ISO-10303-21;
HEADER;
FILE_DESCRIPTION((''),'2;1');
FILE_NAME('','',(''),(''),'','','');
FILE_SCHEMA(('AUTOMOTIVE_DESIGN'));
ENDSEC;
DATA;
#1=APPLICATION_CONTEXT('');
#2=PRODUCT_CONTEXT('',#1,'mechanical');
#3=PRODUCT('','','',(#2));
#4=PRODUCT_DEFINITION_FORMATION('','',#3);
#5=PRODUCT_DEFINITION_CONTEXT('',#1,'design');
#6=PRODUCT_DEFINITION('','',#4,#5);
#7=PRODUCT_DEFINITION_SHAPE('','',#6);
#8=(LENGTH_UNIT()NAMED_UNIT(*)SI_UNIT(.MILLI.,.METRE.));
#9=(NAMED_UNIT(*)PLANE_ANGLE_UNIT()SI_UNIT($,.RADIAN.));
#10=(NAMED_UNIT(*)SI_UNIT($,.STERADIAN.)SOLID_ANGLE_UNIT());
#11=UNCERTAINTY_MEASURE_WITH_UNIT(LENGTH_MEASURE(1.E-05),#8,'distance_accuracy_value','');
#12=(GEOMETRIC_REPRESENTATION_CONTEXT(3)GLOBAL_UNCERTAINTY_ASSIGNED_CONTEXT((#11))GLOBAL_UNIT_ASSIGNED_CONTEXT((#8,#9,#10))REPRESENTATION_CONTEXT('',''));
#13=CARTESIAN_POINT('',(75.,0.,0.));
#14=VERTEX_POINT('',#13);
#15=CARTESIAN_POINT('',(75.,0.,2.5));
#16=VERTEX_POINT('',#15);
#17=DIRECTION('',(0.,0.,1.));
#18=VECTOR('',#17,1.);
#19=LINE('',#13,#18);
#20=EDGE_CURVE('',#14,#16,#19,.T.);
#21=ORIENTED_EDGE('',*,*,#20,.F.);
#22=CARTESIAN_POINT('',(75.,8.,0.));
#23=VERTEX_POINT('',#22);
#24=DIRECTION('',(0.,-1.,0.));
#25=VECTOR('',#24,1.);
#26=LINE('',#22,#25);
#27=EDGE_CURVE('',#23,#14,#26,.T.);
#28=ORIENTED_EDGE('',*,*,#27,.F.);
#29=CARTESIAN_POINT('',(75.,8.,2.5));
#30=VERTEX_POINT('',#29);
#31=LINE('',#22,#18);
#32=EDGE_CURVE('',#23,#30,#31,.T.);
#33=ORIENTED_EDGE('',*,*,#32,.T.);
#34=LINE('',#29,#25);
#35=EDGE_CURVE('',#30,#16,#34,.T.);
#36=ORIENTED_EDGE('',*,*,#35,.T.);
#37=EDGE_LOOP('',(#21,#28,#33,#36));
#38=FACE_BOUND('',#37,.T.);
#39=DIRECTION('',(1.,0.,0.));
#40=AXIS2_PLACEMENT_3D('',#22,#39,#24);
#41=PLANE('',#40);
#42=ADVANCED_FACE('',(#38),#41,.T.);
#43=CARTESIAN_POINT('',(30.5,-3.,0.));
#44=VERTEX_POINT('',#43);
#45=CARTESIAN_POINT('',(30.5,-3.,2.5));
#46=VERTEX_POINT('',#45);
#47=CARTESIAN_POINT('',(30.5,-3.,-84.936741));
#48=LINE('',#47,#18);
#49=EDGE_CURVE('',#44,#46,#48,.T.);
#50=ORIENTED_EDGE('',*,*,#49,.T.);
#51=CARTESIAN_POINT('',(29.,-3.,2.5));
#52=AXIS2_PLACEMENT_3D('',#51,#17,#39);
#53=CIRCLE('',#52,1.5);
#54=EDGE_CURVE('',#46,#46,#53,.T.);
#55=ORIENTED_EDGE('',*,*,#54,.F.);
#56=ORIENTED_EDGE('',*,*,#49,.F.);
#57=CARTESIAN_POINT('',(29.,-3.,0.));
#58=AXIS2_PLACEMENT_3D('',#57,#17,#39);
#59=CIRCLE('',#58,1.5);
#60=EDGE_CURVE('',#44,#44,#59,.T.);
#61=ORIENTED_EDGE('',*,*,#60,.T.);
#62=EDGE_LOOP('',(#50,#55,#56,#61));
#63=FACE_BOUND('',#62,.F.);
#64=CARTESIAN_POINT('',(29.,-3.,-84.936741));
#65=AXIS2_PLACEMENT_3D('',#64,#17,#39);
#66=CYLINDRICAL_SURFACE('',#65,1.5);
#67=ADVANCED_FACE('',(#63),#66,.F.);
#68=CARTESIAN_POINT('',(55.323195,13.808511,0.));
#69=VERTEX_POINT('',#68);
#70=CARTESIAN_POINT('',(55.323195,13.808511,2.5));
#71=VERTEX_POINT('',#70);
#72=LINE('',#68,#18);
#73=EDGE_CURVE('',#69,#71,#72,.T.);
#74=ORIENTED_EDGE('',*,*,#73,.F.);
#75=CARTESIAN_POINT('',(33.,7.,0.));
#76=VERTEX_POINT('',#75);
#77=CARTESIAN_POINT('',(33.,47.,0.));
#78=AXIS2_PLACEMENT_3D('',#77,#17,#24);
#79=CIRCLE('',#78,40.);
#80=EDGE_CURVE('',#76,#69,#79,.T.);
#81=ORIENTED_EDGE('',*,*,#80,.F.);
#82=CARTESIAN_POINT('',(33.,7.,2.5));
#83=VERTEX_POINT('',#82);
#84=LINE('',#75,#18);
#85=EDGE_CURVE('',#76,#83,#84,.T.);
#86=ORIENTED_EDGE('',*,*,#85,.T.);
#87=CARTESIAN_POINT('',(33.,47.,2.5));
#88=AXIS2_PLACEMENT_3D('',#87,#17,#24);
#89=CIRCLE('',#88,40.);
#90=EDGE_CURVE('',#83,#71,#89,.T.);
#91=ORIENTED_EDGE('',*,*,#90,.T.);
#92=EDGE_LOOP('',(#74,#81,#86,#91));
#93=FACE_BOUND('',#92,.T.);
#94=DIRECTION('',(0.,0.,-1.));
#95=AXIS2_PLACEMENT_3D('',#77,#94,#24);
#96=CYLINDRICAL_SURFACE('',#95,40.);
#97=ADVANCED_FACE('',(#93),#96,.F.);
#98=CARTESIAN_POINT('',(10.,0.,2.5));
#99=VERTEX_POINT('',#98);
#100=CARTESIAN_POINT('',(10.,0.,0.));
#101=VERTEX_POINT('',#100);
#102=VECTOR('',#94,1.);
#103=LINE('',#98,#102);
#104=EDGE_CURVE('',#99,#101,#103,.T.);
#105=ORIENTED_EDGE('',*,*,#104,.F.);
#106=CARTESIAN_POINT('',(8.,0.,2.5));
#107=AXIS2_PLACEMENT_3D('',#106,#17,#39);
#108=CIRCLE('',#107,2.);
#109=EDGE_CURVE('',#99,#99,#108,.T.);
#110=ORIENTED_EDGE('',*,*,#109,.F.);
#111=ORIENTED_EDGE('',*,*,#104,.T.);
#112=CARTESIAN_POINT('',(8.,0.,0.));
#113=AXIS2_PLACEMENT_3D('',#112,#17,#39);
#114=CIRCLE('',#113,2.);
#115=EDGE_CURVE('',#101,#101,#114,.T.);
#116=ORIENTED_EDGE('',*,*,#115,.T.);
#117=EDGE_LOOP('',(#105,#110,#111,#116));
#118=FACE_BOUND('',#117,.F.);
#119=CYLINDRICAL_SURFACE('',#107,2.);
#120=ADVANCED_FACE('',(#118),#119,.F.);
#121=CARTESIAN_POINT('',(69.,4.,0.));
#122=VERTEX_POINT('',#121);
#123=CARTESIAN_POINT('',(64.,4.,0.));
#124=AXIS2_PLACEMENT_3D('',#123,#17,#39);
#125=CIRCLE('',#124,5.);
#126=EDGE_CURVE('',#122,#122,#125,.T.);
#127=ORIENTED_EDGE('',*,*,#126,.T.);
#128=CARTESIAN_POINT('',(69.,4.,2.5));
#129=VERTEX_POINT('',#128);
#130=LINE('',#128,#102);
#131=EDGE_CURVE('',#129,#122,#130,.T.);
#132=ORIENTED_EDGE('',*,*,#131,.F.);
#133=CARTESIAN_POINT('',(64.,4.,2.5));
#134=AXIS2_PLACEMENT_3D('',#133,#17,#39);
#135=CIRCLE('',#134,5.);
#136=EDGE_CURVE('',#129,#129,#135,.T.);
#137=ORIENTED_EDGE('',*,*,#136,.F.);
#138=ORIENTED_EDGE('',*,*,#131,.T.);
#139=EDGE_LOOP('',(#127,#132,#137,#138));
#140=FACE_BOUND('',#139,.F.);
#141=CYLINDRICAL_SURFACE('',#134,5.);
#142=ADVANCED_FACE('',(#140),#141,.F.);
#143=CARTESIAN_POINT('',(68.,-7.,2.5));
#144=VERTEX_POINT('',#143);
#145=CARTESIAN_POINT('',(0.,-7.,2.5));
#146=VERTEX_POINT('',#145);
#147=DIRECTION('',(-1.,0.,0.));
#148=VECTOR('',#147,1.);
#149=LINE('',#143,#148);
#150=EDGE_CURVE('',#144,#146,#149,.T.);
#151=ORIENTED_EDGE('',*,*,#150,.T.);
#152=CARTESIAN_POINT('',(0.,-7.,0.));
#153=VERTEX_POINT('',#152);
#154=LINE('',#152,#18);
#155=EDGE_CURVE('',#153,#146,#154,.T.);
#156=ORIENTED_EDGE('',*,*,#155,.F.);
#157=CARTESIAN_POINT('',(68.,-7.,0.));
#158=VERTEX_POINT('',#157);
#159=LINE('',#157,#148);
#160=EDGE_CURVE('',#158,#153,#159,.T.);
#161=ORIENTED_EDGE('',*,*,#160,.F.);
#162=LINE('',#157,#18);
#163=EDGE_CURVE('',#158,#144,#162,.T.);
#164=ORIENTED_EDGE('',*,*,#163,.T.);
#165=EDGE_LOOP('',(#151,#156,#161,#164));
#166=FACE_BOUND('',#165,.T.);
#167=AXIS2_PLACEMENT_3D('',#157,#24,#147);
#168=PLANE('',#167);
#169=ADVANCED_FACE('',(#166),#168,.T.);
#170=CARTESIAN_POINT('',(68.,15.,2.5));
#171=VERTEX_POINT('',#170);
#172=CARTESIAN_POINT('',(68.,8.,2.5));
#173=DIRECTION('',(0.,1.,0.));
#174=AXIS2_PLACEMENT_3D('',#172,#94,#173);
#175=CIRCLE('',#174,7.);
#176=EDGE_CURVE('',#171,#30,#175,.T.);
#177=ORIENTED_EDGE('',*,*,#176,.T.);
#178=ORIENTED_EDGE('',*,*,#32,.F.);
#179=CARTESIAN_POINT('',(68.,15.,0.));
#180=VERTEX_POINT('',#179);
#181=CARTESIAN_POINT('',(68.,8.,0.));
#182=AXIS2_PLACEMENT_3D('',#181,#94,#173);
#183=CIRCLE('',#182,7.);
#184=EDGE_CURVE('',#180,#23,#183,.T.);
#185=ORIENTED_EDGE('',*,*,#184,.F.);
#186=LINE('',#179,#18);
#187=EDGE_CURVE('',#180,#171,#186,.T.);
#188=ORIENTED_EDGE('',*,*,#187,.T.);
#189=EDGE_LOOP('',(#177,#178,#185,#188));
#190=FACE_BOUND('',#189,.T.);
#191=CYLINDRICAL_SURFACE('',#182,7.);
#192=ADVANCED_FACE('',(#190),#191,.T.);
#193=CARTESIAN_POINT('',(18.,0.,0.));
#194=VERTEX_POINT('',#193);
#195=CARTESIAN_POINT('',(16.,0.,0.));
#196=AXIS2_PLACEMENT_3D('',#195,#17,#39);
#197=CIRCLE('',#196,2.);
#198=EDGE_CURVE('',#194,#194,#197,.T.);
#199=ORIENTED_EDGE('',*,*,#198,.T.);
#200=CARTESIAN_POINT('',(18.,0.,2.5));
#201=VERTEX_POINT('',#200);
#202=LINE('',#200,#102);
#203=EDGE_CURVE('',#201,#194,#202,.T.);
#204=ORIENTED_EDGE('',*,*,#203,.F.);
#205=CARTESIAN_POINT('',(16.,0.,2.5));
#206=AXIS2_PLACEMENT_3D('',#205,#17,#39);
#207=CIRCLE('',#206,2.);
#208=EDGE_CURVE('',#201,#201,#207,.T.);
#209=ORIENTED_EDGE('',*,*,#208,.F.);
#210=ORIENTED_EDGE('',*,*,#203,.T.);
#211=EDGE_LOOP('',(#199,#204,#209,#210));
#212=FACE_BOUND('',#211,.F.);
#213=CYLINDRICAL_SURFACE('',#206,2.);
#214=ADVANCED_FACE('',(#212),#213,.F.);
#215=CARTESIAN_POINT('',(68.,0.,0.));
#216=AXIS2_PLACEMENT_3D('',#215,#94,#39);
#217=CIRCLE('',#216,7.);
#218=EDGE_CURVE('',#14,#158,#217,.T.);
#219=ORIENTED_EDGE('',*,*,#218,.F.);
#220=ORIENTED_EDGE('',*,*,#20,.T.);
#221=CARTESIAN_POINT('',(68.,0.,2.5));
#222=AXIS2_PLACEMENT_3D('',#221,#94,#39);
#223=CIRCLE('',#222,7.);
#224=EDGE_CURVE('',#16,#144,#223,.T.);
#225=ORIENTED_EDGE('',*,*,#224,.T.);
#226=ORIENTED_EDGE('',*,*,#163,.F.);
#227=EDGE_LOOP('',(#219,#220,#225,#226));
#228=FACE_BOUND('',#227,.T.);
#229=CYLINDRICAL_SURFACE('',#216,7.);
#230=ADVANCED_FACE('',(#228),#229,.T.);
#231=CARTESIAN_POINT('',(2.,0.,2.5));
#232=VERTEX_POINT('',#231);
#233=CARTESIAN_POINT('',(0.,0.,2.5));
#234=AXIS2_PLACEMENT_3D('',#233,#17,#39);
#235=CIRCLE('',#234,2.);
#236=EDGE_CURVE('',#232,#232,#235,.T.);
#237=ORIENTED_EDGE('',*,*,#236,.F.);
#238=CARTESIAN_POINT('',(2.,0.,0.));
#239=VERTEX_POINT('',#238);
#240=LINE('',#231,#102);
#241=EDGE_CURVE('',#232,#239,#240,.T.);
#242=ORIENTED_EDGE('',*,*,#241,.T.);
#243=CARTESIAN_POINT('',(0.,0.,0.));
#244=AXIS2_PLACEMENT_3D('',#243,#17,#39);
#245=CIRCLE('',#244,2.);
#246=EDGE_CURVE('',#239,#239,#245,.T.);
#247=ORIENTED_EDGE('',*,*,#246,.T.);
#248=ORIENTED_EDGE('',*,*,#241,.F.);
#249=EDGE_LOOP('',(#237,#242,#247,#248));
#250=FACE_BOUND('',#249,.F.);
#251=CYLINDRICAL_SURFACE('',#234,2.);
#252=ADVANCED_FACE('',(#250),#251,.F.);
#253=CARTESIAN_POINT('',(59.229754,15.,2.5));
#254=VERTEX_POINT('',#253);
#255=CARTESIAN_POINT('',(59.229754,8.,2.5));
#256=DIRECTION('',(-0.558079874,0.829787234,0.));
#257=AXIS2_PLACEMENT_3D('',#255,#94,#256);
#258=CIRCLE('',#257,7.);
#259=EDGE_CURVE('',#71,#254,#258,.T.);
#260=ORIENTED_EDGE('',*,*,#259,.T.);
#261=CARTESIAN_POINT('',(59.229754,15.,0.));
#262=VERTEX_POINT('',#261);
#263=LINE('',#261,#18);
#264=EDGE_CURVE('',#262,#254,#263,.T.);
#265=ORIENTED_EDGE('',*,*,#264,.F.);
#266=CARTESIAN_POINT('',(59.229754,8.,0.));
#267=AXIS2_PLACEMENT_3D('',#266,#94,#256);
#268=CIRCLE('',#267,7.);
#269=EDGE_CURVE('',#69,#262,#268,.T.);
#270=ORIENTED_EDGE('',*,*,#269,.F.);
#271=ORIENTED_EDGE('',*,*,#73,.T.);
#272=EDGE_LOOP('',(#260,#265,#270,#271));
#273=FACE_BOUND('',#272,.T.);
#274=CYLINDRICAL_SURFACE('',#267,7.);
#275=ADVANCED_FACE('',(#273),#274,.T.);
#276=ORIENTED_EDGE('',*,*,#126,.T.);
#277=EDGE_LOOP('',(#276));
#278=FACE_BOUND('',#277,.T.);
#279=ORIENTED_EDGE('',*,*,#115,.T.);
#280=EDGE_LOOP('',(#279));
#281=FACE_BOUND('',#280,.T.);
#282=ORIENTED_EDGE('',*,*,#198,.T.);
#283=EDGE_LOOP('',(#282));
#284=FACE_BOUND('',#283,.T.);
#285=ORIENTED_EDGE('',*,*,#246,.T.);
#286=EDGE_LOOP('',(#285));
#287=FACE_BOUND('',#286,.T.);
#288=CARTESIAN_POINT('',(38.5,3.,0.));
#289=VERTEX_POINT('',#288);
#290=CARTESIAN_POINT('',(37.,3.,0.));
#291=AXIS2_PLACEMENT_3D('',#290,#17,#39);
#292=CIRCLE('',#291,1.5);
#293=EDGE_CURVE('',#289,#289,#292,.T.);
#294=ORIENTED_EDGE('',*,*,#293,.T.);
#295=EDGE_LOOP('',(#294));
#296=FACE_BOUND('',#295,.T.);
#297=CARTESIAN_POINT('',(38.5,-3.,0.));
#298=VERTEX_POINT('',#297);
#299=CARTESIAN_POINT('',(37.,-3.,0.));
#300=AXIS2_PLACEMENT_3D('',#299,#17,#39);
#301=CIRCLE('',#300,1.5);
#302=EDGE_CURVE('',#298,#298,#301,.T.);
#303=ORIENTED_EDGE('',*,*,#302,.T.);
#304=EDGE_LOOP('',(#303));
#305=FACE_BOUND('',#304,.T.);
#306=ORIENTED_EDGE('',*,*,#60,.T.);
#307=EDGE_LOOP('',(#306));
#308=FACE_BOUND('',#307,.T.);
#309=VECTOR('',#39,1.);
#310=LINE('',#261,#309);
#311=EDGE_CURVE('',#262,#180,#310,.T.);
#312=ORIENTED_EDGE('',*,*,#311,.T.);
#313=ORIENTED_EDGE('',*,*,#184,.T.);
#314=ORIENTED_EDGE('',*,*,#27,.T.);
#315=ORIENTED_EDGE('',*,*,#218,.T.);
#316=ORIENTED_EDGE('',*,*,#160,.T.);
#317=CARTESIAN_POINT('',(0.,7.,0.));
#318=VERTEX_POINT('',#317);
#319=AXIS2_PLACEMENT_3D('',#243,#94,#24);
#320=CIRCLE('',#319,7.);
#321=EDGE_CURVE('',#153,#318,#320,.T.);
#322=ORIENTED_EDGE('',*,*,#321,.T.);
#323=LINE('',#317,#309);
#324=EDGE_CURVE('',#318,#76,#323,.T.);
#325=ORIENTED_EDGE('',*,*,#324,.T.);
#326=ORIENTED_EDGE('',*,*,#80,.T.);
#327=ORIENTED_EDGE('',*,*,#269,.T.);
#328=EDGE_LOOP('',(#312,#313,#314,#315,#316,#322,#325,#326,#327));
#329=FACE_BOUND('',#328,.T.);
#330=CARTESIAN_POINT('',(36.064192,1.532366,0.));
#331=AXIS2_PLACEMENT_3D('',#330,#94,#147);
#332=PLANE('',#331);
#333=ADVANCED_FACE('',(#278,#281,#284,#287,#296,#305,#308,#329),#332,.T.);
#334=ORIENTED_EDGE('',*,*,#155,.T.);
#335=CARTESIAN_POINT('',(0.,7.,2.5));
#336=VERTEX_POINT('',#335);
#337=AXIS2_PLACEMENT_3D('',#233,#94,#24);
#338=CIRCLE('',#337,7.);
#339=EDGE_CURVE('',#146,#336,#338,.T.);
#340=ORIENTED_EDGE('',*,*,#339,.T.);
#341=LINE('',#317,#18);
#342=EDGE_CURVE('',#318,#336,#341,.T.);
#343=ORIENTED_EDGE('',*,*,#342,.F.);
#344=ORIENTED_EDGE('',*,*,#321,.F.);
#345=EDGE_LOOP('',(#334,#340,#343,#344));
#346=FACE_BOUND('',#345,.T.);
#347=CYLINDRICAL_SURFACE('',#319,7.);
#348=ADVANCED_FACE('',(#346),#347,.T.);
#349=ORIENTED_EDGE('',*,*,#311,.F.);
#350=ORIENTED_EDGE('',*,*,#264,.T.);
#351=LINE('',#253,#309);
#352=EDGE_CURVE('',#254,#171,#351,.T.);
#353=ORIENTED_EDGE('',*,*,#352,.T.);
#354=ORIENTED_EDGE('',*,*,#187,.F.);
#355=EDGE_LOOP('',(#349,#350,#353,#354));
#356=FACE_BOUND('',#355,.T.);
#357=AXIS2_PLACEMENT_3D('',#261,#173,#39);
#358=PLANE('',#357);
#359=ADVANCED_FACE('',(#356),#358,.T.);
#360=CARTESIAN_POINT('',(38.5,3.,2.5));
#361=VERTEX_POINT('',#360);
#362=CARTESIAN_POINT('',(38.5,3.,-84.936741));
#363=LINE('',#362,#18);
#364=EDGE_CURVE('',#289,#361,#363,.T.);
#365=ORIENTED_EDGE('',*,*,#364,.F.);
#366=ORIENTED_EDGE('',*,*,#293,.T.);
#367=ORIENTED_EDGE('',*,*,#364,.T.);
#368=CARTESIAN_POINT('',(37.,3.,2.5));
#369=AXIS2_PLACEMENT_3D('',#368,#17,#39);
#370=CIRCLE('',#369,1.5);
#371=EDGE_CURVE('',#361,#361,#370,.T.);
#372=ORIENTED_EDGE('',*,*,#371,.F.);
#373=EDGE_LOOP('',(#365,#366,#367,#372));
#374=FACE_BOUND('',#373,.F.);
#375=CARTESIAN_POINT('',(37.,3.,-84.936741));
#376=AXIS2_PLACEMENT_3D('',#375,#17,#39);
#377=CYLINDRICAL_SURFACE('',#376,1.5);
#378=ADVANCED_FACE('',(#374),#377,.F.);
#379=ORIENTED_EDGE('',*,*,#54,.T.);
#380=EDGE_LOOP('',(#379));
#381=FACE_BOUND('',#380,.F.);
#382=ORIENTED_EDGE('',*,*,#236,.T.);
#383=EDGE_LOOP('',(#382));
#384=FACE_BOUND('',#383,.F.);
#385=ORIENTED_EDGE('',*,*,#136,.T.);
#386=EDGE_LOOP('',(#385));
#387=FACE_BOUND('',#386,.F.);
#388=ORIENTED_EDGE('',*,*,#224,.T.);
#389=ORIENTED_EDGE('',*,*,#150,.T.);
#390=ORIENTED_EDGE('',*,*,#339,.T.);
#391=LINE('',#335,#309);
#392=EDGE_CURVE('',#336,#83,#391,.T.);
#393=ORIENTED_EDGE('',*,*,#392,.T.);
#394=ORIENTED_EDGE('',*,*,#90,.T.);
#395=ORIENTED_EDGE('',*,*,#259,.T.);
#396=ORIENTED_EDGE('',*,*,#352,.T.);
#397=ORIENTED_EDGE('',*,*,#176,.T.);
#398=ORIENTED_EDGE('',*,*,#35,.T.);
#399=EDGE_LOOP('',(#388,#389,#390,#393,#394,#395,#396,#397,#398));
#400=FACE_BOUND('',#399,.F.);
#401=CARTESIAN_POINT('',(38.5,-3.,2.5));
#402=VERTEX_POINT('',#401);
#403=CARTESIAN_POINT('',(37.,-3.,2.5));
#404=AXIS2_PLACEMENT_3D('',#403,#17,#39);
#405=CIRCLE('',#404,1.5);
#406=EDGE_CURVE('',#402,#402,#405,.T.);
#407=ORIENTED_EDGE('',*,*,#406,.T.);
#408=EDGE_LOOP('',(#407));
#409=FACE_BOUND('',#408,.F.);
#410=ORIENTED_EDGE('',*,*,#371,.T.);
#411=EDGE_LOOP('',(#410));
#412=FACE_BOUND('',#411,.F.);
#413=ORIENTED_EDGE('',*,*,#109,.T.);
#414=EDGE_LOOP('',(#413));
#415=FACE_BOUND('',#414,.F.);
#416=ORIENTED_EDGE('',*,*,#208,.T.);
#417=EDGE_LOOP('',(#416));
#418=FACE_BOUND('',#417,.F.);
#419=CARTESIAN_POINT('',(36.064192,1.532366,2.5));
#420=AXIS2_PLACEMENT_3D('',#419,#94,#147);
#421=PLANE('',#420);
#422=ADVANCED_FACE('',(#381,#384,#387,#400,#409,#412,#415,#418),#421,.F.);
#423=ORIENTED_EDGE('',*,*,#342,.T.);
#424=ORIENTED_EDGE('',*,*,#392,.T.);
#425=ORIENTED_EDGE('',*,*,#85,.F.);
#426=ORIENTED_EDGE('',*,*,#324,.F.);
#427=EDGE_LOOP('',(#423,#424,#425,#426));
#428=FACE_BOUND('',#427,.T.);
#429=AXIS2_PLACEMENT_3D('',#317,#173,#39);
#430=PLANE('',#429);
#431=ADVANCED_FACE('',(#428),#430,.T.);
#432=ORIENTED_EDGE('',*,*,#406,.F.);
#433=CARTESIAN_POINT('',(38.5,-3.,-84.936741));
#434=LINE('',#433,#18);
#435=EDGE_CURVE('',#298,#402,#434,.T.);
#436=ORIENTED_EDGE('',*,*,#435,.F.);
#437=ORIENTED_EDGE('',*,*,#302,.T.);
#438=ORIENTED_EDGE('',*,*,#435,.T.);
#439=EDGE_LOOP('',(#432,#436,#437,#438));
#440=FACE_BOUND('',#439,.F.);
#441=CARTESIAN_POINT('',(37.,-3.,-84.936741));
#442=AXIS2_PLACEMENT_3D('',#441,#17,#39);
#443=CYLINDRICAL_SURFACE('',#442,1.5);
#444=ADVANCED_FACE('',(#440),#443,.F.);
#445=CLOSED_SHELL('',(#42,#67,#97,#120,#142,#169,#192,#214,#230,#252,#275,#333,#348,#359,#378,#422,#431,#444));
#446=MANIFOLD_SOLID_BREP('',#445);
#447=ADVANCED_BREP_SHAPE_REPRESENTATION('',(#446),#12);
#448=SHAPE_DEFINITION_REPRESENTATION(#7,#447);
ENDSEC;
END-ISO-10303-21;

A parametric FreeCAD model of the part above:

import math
import FreeCAD as App
import Part
import Sketcher
from FreeCAD import Vector

doc = App.newDocument("Part")
body = doc.addObject("PartDesign::Body", "Body")

sketch1 = body.newObject("Sketcher::SketchObject", "Sketch")
sketch1.AttachmentSupport = (doc.getObject("XY_Plane"), [""])
sketch1.MapMode = "FlatFace"
sketch1.addGeometry(Part.LineSegment(Vector(33, 7, 0), Vector(0, 7, 0)), False)
sketch1.addGeometry(Part.ArcOfCircle(Part.Circle(Vector(0, 0, 0), Vector(0, 0, 1), 7), math.radians(90), math.radians(270)), False)
sketch1.addGeometry(Part.LineSegment(Vector(0, -7, 0), Vector(68, -7, 0)), False)
sketch1.addGeometry(Part.ArcOfCircle(Part.Circle(Vector(68, 0, 0), Vector(0, 0, 1), 7), math.radians(-90), math.radians(0)), False)
sketch1.addGeometry(Part.LineSegment(Vector(75, 0, 0), Vector(75, 8, 0)), False)
sketch1.addGeometry(Part.ArcOfCircle(Part.Circle(Vector(68, 8, 0), Vector(0, 0, 1), 7), math.radians(0), math.radians(90)), False)
sketch1.addGeometry(Part.LineSegment(Vector(68, 15, 0), Vector(59.229754, 15, 0)), False)
sketch1.addGeometry(Part.ArcOfCircle(Part.Circle(Vector(59.229754, 8, 0), Vector(0, 0, 1), 7), math.radians(90), math.radians(123.923112)), False)
sketch1.addGeometry(Part.ArcOfCircle(Part.Circle(Vector(33, 47, 0), Vector(0, 0, 1), 40), math.radians(-90), math.radians(-56.076888)), False)
sketch1.addConstraint(Sketcher.Constraint("Tangent", 0, 2, 1, 1))
sketch1.addConstraint(Sketcher.Constraint("Tangent", 1, 2, 2, 1))
sketch1.addConstraint(Sketcher.Constraint("Tangent", 2, 2, 3, 1))
sketch1.addConstraint(Sketcher.Constraint("Tangent", 3, 2, 4, 1))
sketch1.addConstraint(Sketcher.Constraint("Tangent", 4, 2, 5, 1))
sketch1.addConstraint(Sketcher.Constraint("Tangent", 5, 2, 6, 1))
sketch1.addConstraint(Sketcher.Constraint("Tangent", 6, 2, 7, 1))
sketch1.addConstraint(Sketcher.Constraint("Tangent", 7, 2, 8, 2))
sketch1.addConstraint(Sketcher.Constraint("Tangent", 8, 1, 0, 1))
sketch1.addConstraint(Sketcher.Constraint("Horizontal", 0))
sketch1.addConstraint(Sketcher.Constraint("Horizontal", 2))
sketch1.addConstraint(Sketcher.Constraint("Vertical", 4))
sketch1.addConstraint(Sketcher.Constraint("Horizontal", 6))
sketch1.addConstraint(Sketcher.Constraint("Coincident", 1, 3, -1, 1))
sketch1.addConstraint(Sketcher.Constraint("Equal", 1, 3))
sketch1.addConstraint(Sketcher.Constraint("Equal", 3, 5))
sketch1.addConstraint(Sketcher.Constraint("Equal", 5, 7))
sketch1.addConstraint(Sketcher.Constraint("Radius", 1, 7.0))
sketch1.addConstraint(Sketcher.Constraint("Radius", 8, 40.0))
sketch1.addConstraint(Sketcher.Constraint("DistanceX", 0, 2, 0, 1, 33.0))
sketch1.addConstraint(Sketcher.Constraint("DistanceX", 2, 1, 2, 2, 68.0))
sketch1.addConstraint(Sketcher.Constraint("DistanceY", 4, 1, 4, 2, 8.0))
pad1 = body.newObject("PartDesign::Pad", "Pad")
pad1.Profile = sketch1
pad1.Length = 2.5

sketch2 = body.newObject("Sketcher::SketchObject", "Sketch001")
sketch2.AttachmentSupport = (doc.getObject("XY_Plane"), [""])
sketch2.MapMode = "FlatFace"
sketch2.AttachmentOffset = App.Placement(Vector(0, 0, 2.5), App.Rotation())
sketch2.addGeometry(Part.Circle(Vector(0, 0, 0), Vector(0, 0, 1), 2), False)
sketch2.addGeometry(Part.Circle(Vector(8, 0, 0), Vector(0, 0, 1), 2), False)
sketch2.addGeometry(Part.Circle(Vector(16, 0, 0), Vector(0, 0, 1), 2), False)
sketch2.addConstraint(Sketcher.Constraint("Coincident", 0, 3, -1, 1))
sketch2.addConstraint(Sketcher.Constraint("Equal", 0, 1))
sketch2.addConstraint(Sketcher.Constraint("Equal", 1, 2))
sketch2.addConstraint(Sketcher.Constraint("PointOnObject", 1, 3, -1))
sketch2.addConstraint(Sketcher.Constraint("PointOnObject", 2, 3, -1))
sketch2.addConstraint(Sketcher.Constraint("Diameter", 0, 4.0))
sketch2.addConstraint(Sketcher.Constraint("DistanceX", -1, 1, 1, 3, 8.0))
sketch2.addConstraint(Sketcher.Constraint("DistanceX", -1, 1, 2, 3, 16.0))
pocket1 = body.newObject("PartDesign::Pocket", "Pocket")
pocket1.Profile = sketch2
pocket1.Length = 2.5

sketch3 = body.newObject("Sketcher::SketchObject", "Sketch002")
sketch3.AttachmentSupport = (doc.getObject("XY_Plane"), [""])
sketch3.MapMode = "FlatFace"
sketch3.AttachmentOffset = App.Placement(Vector(0, 0, 2.5), App.Rotation())
sketch3.addGeometry(Part.Circle(Vector(64, 4, 0), Vector(0, 0, 1), 5), False)
sketch3.addConstraint(Sketcher.Constraint("Diameter", 0, 10.0))
sketch3.addConstraint(Sketcher.Constraint("DistanceX", -1, 1, 0, 3, 64.0))
sketch3.addConstraint(Sketcher.Constraint("DistanceY", -1, 1, 0, 3, 4.0))
pocket2 = body.newObject("PartDesign::Pocket", "Pocket001")
pocket2.Profile = sketch3
pocket2.Length = 2.5

sketch4 = body.newObject("Sketcher::SketchObject", "Sketch003")
sketch4.AttachmentSupport = (doc.getObject("XY_Plane"), [""])
sketch4.MapMode = "FlatFace"
sketch4.addGeometry(Part.Circle(Vector(37, 3, 0), Vector(0, 0, 1), 1.5), False)
sketch4.addGeometry(Part.Circle(Vector(37, -3, 0), Vector(0, 0, 1), 1.5), False)
sketch4.addGeometry(Part.Circle(Vector(29, -3, 0), Vector(0, 0, 1), 1.5), False)
sketch4.addConstraint(Sketcher.Constraint("Equal", 0, 1))
sketch4.addConstraint(Sketcher.Constraint("Equal", 1, 2))
sketch4.addConstraint(Sketcher.Constraint("Symmetric", 0, 3, 1, 3, -1))
sketch4.addConstraint(Sketcher.Constraint("Horizontal", 1, 3, 2, 3))
sketch4.addConstraint(Sketcher.Constraint("Diameter", 0, 3.0))
sketch4.addConstraint(Sketcher.Constraint("DistanceX", -1, 1, 0, 3, 37.0))
sketch4.addConstraint(Sketcher.Constraint("DistanceY", -1, 1, 0, 3, 3.0))
sketch4.addConstraint(Sketcher.Constraint("DistanceX", -1, 1, 2, 3, 29.0))
doc.recompute()
hole = body.newObject("PartDesign::Hole", "Hole")
hole.Profile = sketch4
hole.ThreadType = "None"
hole.Diameter = 3
hole.DepthType = "ThroughAll"
hole.Reversed = True

doc.recompute()
